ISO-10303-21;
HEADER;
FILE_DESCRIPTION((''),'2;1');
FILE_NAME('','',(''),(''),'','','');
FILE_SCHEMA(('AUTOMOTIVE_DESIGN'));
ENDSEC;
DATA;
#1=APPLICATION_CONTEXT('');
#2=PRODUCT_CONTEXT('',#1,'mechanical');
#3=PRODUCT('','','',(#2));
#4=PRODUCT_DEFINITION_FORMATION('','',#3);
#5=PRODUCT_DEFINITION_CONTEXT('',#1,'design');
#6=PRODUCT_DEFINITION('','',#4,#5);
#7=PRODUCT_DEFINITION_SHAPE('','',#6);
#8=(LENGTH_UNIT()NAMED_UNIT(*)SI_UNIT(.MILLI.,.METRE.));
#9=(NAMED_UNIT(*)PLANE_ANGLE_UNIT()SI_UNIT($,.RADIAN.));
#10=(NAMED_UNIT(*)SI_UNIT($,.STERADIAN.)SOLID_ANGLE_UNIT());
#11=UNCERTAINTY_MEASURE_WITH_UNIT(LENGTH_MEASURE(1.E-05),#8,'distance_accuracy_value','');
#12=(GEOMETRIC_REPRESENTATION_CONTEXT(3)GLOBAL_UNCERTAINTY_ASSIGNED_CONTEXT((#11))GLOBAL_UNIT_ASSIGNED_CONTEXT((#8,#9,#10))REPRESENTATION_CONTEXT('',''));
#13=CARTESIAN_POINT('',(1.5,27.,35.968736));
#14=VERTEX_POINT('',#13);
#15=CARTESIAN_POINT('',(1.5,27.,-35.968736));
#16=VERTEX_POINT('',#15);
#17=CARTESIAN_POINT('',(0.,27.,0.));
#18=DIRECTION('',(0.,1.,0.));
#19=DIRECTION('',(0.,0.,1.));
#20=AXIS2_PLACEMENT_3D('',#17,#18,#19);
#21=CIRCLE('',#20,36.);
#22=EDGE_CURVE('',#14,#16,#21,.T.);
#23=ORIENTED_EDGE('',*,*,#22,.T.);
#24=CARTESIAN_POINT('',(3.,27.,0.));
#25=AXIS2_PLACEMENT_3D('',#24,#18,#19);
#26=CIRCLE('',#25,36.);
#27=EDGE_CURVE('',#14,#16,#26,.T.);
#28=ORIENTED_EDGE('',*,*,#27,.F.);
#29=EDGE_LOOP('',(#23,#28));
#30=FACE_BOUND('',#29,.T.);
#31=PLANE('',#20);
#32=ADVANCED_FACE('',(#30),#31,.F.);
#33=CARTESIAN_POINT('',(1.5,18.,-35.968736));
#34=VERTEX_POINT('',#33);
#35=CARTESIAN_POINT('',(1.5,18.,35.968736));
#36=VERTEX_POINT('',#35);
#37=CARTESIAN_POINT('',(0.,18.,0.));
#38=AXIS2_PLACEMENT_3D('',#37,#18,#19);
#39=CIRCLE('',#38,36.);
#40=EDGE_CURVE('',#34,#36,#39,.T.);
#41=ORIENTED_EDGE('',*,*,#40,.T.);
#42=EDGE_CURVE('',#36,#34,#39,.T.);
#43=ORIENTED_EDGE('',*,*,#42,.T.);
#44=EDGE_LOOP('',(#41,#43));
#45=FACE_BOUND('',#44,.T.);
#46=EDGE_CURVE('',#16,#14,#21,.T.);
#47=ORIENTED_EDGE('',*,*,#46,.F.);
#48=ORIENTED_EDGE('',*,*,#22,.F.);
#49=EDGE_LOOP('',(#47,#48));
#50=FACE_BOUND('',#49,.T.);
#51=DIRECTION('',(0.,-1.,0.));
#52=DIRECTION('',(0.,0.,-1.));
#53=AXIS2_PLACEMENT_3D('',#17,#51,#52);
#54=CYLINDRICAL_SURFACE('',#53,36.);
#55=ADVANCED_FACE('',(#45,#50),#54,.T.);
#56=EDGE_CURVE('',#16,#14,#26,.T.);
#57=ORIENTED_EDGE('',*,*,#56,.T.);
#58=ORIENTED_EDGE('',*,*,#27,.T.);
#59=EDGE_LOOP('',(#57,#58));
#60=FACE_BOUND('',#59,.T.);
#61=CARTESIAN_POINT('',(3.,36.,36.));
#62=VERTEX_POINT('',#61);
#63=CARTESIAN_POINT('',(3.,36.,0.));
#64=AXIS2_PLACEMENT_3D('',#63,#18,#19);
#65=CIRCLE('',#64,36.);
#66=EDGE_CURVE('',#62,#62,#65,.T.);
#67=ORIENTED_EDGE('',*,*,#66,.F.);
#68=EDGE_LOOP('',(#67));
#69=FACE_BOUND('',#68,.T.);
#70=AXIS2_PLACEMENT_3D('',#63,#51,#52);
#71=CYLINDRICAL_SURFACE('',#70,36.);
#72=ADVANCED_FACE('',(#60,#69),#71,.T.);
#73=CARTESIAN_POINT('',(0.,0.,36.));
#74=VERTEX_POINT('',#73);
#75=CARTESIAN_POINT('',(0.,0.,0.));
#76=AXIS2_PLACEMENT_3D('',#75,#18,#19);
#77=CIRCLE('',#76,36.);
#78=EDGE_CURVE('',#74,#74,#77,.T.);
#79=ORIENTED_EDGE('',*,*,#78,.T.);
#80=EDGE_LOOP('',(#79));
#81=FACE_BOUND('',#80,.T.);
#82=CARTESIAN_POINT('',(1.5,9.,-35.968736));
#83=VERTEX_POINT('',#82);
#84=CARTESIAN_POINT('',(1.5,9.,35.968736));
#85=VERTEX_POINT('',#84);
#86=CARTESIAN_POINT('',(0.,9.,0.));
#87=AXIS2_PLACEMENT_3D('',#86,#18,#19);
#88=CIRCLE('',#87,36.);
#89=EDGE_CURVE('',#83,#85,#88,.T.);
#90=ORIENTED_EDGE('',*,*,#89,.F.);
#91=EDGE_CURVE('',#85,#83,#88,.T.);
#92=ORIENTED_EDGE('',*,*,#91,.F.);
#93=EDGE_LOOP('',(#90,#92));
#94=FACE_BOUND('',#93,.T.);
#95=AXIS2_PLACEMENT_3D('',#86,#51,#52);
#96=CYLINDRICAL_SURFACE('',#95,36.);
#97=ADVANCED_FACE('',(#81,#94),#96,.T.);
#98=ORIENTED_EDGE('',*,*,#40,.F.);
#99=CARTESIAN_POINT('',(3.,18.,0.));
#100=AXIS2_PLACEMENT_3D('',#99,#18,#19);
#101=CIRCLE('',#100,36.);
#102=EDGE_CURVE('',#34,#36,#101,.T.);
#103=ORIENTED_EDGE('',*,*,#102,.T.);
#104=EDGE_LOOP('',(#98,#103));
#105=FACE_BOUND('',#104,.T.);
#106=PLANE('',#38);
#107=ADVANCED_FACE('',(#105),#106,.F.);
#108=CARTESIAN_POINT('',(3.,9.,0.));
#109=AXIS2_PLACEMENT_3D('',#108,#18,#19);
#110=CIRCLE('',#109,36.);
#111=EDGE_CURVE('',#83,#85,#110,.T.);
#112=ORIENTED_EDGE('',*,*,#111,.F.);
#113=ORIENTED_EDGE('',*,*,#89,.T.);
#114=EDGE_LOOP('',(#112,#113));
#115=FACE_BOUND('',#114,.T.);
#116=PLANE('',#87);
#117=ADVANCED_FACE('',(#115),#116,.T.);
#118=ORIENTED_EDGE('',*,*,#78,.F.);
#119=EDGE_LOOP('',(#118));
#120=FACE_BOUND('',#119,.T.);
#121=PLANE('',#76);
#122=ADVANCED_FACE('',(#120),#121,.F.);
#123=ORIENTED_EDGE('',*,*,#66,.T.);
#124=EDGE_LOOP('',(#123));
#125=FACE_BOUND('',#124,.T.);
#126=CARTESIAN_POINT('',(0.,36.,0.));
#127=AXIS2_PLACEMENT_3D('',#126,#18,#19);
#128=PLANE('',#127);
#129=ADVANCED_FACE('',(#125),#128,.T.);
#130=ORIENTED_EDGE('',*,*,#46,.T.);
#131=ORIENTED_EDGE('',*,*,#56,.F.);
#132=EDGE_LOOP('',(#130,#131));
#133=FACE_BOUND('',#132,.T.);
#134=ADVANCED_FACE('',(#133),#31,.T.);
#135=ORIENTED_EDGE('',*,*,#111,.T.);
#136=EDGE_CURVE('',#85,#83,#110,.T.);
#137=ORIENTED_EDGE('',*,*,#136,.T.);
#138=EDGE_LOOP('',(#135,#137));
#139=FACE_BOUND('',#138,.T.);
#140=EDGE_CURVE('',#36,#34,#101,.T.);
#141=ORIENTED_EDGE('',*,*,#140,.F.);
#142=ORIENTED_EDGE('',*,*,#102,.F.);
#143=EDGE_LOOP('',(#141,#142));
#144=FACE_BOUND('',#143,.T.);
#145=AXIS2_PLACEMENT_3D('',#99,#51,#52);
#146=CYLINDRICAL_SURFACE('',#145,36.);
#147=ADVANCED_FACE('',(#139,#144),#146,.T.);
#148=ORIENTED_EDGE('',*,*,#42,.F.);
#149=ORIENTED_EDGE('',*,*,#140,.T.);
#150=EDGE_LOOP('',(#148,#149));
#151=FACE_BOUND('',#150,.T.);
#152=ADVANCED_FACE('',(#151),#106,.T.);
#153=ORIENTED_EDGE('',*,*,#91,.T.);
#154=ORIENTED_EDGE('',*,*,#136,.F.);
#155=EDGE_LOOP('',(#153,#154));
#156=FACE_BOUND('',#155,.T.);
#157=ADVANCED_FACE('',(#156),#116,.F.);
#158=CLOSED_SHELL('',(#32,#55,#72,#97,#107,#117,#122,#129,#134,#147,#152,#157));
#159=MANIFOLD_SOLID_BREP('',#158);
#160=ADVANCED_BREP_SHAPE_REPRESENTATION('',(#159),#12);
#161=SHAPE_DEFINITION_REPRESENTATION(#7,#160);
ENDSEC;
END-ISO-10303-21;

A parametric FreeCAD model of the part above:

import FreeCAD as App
import Part
import Sketcher
from FreeCAD import Vector
Q = App.Units.Quantity

doc = App.newDocument("Part")
body = doc.addObject("PartDesign::Body", "Body")

sketch1 = body.newObject("Sketcher::SketchObject", "Sketch")
sketch1.AttachmentSupport = (doc.getObject("XZ_Plane"), [""])
sketch1.MapMode = "FlatFace"
sketch1.addGeometry(Part.Circle(Vector(0, 0, 0), Vector(0, 0, 1), 36), False)
sketch1.addConstraint([
    Sketcher.Constraint("Coincident", 0, 3, -1, 1),
    Sketcher.Constraint("Diameter", 0, Q("72 mm")),
])
pad1 = body.newObject("PartDesign::Pad", "Pad")
pad1.Profile = sketch1
pad1.Length = 9
pad1.Reversed = True

sketch2 = body.newObject("Sketcher::SketchObject", "Sketch001")
sketch2.AttachmentSupport = (doc.getObject("XZ_Plane"), [""])
sketch2.MapMode = "FlatFace"
sketch2.AttachmentOffset = App.Placement(Vector(0, 0, -9), App.Rotation())
sketch2.addGeometry(Part.Circle(Vector(3, 0, 0), Vector(0, 0, 1), 36), False)
sketch2.addConstraint([
    Sketcher.Constraint("PointOnObject", 0, 3, -1),
    Sketcher.Constraint("Diameter", 0, Q("72 mm")),
    Sketcher.Constraint("DistanceX", -1, 1, 0, 3, Q("3 mm")),
])
pad2 = body.newObject("PartDesign::Pad", "Pad001")
pad2.Profile = sketch2
pad2.Length = 9
pad2.Reversed = True

sketch3 = body.newObject("Sketcher::SketchObject", "Sketch002")
sketch3.AttachmentSupport = (doc.getObject("XZ_Plane"), [""])
sketch3.MapMode = "FlatFace"
sketch3.AttachmentOffset = App.Placement(Vector(0, 0, -18), App.Rotation())
sketch3.addGeometry(Part.Circle(Vector(0, 0, 0), Vector(0, 0, 1), 36), False)
sketch3.addConstraint([
    Sketcher.Constraint("Coincident", 0, 3, -1, 1),
    Sketcher.Constraint("Diameter", 0, Q("72 mm")),
])
pad3 = body.newObject("PartDesign::Pad", "Pad002")
pad3.Profile = sketch3
pad3.Length = 9
pad3.Reversed = True

sketch4 = body.newObject("Sketcher::SketchObject", "Sketch003")
sketch4.AttachmentSupport = (doc.getObject("XZ_Plane"), [""])
sketch4.MapMode = "FlatFace"
sketch4.AttachmentOffset = App.Placement(Vector(0, 0, -27), App.Rotation())
sketch4.addGeometry(Part.Circle(Vector(3, 0, 0), Vector(0, 0, 1), 36), False)
sketch4.addConstraint([
    Sketcher.Constraint("PointOnObject", 0, 3, -1),
    Sketcher.Constraint("Diameter", 0, Q("72 mm")),
    Sketcher.Constraint("DistanceX", -1, 1, 0, 3, Q("3 mm")),
])
pad4 = body.newObject("PartDesign::Pad", "Pad003")
pad4.Profile = sketch4
pad4.Length = 9
pad4.Reversed = True

doc.recompute()
